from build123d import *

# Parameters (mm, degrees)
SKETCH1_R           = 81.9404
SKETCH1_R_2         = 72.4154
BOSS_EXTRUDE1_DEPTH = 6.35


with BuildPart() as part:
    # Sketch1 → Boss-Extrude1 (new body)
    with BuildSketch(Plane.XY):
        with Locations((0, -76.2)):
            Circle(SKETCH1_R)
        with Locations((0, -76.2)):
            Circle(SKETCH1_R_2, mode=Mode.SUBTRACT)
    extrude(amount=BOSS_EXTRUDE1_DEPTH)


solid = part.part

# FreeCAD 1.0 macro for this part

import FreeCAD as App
import Part
import Sketcher
from FreeCAD import Vector
Q = App.Units.Quantity

doc = App.newDocument("Part")
params = doc.addObject("Spreadsheet::Sheet", "Params")
for row, (alias, value) in enumerate([
    ("sketch1_diameter", "6.452 in"),
    ("sketch1_diameter2", "5.702 in"),
    ("pad1_length", "0.25 in"),
], start=1):
    params.set(f"A{row}", alias)
    params.set(f"B{row}", "=" + value)
    params.setAlias(f"B{row}", alias)

body = doc.addObject("PartDesign::Body", "Body")

# Sketch on XY plane
sketch1 = body.newObject("Sketcher::SketchObject", "Sketch")
sketch1.AttachmentSupport = (doc.getObject("XY_Plane"), [""])
sketch1.MapMode = "FlatFace"
sketch1.addGeometry([
    Part.Circle(Vector(0, -76, 0), Vector(0, 0, 1), 82),
    Part.Circle(Vector(0, -76, 0), Vector(0, 0, 1), 72),
], False)
sketch1.addConstraint([
    Sketcher.Constraint("Coincident", 1, 3, 0, 3),
    Sketcher.Constraint("PointOnObject", 0, 3, -2),
    Sketcher.Constraint("Diameter", 0, Q("6.452 in")),
    Sketcher.Constraint("Diameter", 1, Q("5.702 in")),
    Sketcher.Constraint("DistanceY", 0, 3, -1, 1, Q("3 in")),
])
sketch1.setExpression("Constraints[2]", "Params.sketch1_diameter")
sketch1.setExpression("Constraints[3]", "Params.sketch1_diameter2")
pad1 = body.newObject("PartDesign::Pad", "Pad")
pad1.Profile = sketch1
pad1.setExpression("Length", "Params.pad1_length")

doc.recompute()
